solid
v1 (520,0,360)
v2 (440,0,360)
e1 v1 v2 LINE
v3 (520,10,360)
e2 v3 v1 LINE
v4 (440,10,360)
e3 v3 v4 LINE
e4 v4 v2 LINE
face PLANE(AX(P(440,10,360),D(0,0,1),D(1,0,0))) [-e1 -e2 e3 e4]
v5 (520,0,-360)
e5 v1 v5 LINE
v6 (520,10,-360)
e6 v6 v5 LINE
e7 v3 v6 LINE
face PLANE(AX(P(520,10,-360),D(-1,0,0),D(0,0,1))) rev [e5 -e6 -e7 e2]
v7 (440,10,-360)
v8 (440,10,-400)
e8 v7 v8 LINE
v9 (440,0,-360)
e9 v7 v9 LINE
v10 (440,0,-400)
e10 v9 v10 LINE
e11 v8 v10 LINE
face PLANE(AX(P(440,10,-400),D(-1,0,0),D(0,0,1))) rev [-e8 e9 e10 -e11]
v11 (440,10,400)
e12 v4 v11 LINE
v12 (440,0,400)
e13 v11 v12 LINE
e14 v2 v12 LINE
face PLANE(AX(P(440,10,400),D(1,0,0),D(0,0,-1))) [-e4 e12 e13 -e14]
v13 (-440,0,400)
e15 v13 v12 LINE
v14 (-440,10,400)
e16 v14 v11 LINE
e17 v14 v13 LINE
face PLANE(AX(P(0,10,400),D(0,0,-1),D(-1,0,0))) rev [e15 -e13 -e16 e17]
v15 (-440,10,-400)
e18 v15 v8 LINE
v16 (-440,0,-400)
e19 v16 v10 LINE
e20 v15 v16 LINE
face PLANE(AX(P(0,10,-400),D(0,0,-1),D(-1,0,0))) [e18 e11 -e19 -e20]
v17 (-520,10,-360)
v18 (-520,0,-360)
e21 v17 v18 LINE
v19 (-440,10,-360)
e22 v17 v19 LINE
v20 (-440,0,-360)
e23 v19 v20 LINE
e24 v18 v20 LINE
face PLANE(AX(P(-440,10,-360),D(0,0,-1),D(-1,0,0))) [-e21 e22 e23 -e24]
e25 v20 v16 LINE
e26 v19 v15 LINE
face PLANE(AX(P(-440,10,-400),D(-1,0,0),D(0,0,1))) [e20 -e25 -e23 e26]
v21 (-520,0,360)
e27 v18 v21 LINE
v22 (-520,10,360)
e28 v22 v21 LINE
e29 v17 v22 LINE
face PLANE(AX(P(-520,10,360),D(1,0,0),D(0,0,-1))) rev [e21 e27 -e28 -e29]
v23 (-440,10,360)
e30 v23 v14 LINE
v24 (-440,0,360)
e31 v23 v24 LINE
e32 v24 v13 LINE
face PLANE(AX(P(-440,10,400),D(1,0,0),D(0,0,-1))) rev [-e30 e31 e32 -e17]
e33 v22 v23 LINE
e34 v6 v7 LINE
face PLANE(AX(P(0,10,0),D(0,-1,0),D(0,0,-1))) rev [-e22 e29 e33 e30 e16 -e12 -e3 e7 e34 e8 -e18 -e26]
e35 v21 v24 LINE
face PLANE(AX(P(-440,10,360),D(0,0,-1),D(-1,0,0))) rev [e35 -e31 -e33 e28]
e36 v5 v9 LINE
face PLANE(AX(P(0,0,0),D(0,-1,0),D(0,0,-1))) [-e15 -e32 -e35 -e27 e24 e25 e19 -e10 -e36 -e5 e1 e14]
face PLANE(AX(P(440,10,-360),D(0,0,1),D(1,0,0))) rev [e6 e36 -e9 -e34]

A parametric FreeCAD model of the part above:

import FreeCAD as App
import Part
import Sketcher
Q = App.Units.Quantity


def add_polygon(sketch, points):
    """Adds a closed chain of lines whose ends are joined by coincident constraints."""
    first, n = sketch.GeometryCount, len(points)
    for a, b in zip(points, points[1:] + points[:1]):
        sketch.addGeometry(Part.LineSegment(App.Vector(*a, 0), App.Vector(*b, 0)), False)
    for i in range(n):
        sketch.addConstraint(Sketcher.Constraint("Coincident", first + i, 2, first + (i + 1) % n, 1))

doc = App.newDocument("Part")
body = doc.addObject("PartDesign::Body", "Body")

sketch1 = doc.addObject("Sketcher::SketchObject", "Sketch")
body.addObject(sketch1)
sketch1.AttachmentSupport = (doc.XZ_Plane, [""])
sketch1.MapMode = "FlatFace"
add_polygon(sketch1, [(0, 400), (0, 0), (-520, 0), (-520, 360), (-440, 360), (-440, 400)])
sketch1.addConstraint(Sketcher.Constraint("Vertical", 0))
sketch1.addConstraint(Sketcher.Constraint("Horizontal", 1))
sketch1.addConstraint(Sketcher.Constraint("Vertical", 2))
sketch1.addConstraint(Sketcher.Constraint("Horizontal", 3))
sketch1.addConstraint(Sketcher.Constraint("Vertical", 4))
sketch1.addConstraint(Sketcher.Constraint("Horizontal", 5))
sketch1.addConstraint(Sketcher.Constraint("Coincident", 0, 2, -1, 1))
sketch1.addConstraint(Sketcher.Constraint("DistanceX", 1, 2, 1, 1, Q("520 mm")))
sketch1.addConstraint(Sketcher.Constraint("DistanceX", 3, 1, 3, 2, Q("80 mm")))
sketch1.addConstraint(Sketcher.Constraint("DistanceY", 0, 2, 0, 1, Q("400 mm")))
sketch1.addConstraint(Sketcher.Constraint("DistanceY", 2, 1, 2, 2, Q("360 mm")))
pad1 = doc.addObject("PartDesign::Pad", "Pad")
body.addObject(pad1)
pad1.Profile = sketch1
pad1.Length = 10
pad1.Reversed = True
doc.recompute()

mirrored = doc.addObject("PartDesign::Mirrored", "Mirrored")
body.addObject(mirrored)
mirrored.Originals = [pad1]
mirrored.MirrorPlane = (doc.XY_Plane, [""])
body.Tip = mirrored
doc.recompute()

mirrored2 = doc.addObject("PartDesign::Mirrored", "Mirrored001")
body.addObject(mirrored2)
mirrored2.Originals = [pad1]
mirrored2.MirrorPlane = (doc.YZ_Plane, [""])
body.Tip = mirrored2

sketch2 = doc.addObject("Sketcher::SketchObject", "Sketch001")
body.addObject(sketch2)
sketch2.AttachmentSupport = (doc.XZ_Plane, [""])
sketch2.MapMode = "FlatFace"
add_polygon(sketch2, [(0, -400), (0, 0), (520, 0), (520, -360), (440, -360), (440, -400)])
sketch2.addConstraint(Sketcher.Constraint("Vertical", 0))
sketch2.addConstraint(Sketcher.Constraint("Horizontal", 1))
sketch2.addConstraint(Sketcher.Constraint("Vertical", 2))
sketch2.addConstraint(Sketcher.Constraint("Horizontal", 3))
sketch2.addConstraint(Sketcher.Constraint("Vertical", 4))
sketch2.addConstraint(Sketcher.Constraint("Horizontal", 5))
sketch2.addConstraint(Sketcher.Constraint("Coincident", 0, 2, -1, 1))
sketch2.addConstraint(Sketcher.Constraint("DistanceX", 1, 1, 1, 2, Q("520 mm")))
sketch2.addConstraint(Sketcher.Constraint("DistanceX", 3, 2, 3, 1, Q("80 mm")))
sketch2.addConstraint(Sketcher.Constraint("DistanceY", 0, 1, 0, 2, Q("400 mm")))
sketch2.addConstraint(Sketcher.Constraint("DistanceY", 2, 2, 2, 1, Q("360 mm")))
pad2 = doc.addObject("PartDesign::Pad", "Pad001")
body.addObject(pad2)
pad2.Profile = sketch2
pad2.Length = 10
pad2.Reversed = True

doc.recompute()
